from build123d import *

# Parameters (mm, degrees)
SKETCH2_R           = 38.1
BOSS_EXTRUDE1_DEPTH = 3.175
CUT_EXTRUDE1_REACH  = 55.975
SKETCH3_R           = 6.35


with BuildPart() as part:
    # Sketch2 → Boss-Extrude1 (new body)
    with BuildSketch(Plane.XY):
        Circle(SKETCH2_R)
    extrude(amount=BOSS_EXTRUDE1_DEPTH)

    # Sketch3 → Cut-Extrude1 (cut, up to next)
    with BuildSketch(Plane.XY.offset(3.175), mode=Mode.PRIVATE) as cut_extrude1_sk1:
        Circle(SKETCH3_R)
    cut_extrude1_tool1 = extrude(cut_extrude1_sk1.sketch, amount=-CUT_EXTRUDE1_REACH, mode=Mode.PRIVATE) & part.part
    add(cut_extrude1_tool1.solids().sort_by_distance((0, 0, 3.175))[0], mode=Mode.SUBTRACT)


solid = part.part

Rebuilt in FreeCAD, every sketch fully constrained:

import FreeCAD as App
import Part
import Sketcher
Q = App.Units.Quantity

doc = App.newDocument("Part")
body = doc.addObject("PartDesign::Body", "Body")

sketch1 = body.newObject("Sketcher::SketchObject", "Sketch")
sketch1.AttachmentSupport = (doc.getObject("XY_Plane"), [""])
sketch1.MapMode = "FlatFace"
sketch1.addGeometry(Part.Circle(App.Vector(0, 0, 0), App.Vector(0, 0, 1), 38), False)
sketch1.addConstraint(Sketcher.Constraint("Coincident", 0, 3, -1, 1))
sketch1.addConstraint(Sketcher.Constraint("Diameter", 0, Q("3 in")))
pad1 = body.newObject("PartDesign::Pad", "Pad")
pad1.Profile = sketch1
pad1.Length = Q("0.125 in")

sketch2 = body.newObject("Sketcher::SketchObject", "Sketch001")
sketch2.AttachmentSupport = (doc.getObject("XY_Plane"), [""])
sketch2.MapMode = "FlatFace"
sketch2.AttachmentOffset = App.Placement(App.Vector(0, 0, 0.125 * 25.4), App.Rotation())
sketch2.addGeometry(Part.Circle(App.Vector(0, 0, 0), App.Vector(0, 0, 1), 6), False)
sketch2.addConstraint(Sketcher.Constraint("Coincident", 0, 3, -1, 1))
sketch2.addConstraint(Sketcher.Constraint("Diameter", 0, Q("0.5 in")))
pocket1 = body.newObject("PartDesign::Pocket", "Pocket")
pocket1.Profile = sketch2
pocket1.Type = "UpToFirst"

doc.recompute()
